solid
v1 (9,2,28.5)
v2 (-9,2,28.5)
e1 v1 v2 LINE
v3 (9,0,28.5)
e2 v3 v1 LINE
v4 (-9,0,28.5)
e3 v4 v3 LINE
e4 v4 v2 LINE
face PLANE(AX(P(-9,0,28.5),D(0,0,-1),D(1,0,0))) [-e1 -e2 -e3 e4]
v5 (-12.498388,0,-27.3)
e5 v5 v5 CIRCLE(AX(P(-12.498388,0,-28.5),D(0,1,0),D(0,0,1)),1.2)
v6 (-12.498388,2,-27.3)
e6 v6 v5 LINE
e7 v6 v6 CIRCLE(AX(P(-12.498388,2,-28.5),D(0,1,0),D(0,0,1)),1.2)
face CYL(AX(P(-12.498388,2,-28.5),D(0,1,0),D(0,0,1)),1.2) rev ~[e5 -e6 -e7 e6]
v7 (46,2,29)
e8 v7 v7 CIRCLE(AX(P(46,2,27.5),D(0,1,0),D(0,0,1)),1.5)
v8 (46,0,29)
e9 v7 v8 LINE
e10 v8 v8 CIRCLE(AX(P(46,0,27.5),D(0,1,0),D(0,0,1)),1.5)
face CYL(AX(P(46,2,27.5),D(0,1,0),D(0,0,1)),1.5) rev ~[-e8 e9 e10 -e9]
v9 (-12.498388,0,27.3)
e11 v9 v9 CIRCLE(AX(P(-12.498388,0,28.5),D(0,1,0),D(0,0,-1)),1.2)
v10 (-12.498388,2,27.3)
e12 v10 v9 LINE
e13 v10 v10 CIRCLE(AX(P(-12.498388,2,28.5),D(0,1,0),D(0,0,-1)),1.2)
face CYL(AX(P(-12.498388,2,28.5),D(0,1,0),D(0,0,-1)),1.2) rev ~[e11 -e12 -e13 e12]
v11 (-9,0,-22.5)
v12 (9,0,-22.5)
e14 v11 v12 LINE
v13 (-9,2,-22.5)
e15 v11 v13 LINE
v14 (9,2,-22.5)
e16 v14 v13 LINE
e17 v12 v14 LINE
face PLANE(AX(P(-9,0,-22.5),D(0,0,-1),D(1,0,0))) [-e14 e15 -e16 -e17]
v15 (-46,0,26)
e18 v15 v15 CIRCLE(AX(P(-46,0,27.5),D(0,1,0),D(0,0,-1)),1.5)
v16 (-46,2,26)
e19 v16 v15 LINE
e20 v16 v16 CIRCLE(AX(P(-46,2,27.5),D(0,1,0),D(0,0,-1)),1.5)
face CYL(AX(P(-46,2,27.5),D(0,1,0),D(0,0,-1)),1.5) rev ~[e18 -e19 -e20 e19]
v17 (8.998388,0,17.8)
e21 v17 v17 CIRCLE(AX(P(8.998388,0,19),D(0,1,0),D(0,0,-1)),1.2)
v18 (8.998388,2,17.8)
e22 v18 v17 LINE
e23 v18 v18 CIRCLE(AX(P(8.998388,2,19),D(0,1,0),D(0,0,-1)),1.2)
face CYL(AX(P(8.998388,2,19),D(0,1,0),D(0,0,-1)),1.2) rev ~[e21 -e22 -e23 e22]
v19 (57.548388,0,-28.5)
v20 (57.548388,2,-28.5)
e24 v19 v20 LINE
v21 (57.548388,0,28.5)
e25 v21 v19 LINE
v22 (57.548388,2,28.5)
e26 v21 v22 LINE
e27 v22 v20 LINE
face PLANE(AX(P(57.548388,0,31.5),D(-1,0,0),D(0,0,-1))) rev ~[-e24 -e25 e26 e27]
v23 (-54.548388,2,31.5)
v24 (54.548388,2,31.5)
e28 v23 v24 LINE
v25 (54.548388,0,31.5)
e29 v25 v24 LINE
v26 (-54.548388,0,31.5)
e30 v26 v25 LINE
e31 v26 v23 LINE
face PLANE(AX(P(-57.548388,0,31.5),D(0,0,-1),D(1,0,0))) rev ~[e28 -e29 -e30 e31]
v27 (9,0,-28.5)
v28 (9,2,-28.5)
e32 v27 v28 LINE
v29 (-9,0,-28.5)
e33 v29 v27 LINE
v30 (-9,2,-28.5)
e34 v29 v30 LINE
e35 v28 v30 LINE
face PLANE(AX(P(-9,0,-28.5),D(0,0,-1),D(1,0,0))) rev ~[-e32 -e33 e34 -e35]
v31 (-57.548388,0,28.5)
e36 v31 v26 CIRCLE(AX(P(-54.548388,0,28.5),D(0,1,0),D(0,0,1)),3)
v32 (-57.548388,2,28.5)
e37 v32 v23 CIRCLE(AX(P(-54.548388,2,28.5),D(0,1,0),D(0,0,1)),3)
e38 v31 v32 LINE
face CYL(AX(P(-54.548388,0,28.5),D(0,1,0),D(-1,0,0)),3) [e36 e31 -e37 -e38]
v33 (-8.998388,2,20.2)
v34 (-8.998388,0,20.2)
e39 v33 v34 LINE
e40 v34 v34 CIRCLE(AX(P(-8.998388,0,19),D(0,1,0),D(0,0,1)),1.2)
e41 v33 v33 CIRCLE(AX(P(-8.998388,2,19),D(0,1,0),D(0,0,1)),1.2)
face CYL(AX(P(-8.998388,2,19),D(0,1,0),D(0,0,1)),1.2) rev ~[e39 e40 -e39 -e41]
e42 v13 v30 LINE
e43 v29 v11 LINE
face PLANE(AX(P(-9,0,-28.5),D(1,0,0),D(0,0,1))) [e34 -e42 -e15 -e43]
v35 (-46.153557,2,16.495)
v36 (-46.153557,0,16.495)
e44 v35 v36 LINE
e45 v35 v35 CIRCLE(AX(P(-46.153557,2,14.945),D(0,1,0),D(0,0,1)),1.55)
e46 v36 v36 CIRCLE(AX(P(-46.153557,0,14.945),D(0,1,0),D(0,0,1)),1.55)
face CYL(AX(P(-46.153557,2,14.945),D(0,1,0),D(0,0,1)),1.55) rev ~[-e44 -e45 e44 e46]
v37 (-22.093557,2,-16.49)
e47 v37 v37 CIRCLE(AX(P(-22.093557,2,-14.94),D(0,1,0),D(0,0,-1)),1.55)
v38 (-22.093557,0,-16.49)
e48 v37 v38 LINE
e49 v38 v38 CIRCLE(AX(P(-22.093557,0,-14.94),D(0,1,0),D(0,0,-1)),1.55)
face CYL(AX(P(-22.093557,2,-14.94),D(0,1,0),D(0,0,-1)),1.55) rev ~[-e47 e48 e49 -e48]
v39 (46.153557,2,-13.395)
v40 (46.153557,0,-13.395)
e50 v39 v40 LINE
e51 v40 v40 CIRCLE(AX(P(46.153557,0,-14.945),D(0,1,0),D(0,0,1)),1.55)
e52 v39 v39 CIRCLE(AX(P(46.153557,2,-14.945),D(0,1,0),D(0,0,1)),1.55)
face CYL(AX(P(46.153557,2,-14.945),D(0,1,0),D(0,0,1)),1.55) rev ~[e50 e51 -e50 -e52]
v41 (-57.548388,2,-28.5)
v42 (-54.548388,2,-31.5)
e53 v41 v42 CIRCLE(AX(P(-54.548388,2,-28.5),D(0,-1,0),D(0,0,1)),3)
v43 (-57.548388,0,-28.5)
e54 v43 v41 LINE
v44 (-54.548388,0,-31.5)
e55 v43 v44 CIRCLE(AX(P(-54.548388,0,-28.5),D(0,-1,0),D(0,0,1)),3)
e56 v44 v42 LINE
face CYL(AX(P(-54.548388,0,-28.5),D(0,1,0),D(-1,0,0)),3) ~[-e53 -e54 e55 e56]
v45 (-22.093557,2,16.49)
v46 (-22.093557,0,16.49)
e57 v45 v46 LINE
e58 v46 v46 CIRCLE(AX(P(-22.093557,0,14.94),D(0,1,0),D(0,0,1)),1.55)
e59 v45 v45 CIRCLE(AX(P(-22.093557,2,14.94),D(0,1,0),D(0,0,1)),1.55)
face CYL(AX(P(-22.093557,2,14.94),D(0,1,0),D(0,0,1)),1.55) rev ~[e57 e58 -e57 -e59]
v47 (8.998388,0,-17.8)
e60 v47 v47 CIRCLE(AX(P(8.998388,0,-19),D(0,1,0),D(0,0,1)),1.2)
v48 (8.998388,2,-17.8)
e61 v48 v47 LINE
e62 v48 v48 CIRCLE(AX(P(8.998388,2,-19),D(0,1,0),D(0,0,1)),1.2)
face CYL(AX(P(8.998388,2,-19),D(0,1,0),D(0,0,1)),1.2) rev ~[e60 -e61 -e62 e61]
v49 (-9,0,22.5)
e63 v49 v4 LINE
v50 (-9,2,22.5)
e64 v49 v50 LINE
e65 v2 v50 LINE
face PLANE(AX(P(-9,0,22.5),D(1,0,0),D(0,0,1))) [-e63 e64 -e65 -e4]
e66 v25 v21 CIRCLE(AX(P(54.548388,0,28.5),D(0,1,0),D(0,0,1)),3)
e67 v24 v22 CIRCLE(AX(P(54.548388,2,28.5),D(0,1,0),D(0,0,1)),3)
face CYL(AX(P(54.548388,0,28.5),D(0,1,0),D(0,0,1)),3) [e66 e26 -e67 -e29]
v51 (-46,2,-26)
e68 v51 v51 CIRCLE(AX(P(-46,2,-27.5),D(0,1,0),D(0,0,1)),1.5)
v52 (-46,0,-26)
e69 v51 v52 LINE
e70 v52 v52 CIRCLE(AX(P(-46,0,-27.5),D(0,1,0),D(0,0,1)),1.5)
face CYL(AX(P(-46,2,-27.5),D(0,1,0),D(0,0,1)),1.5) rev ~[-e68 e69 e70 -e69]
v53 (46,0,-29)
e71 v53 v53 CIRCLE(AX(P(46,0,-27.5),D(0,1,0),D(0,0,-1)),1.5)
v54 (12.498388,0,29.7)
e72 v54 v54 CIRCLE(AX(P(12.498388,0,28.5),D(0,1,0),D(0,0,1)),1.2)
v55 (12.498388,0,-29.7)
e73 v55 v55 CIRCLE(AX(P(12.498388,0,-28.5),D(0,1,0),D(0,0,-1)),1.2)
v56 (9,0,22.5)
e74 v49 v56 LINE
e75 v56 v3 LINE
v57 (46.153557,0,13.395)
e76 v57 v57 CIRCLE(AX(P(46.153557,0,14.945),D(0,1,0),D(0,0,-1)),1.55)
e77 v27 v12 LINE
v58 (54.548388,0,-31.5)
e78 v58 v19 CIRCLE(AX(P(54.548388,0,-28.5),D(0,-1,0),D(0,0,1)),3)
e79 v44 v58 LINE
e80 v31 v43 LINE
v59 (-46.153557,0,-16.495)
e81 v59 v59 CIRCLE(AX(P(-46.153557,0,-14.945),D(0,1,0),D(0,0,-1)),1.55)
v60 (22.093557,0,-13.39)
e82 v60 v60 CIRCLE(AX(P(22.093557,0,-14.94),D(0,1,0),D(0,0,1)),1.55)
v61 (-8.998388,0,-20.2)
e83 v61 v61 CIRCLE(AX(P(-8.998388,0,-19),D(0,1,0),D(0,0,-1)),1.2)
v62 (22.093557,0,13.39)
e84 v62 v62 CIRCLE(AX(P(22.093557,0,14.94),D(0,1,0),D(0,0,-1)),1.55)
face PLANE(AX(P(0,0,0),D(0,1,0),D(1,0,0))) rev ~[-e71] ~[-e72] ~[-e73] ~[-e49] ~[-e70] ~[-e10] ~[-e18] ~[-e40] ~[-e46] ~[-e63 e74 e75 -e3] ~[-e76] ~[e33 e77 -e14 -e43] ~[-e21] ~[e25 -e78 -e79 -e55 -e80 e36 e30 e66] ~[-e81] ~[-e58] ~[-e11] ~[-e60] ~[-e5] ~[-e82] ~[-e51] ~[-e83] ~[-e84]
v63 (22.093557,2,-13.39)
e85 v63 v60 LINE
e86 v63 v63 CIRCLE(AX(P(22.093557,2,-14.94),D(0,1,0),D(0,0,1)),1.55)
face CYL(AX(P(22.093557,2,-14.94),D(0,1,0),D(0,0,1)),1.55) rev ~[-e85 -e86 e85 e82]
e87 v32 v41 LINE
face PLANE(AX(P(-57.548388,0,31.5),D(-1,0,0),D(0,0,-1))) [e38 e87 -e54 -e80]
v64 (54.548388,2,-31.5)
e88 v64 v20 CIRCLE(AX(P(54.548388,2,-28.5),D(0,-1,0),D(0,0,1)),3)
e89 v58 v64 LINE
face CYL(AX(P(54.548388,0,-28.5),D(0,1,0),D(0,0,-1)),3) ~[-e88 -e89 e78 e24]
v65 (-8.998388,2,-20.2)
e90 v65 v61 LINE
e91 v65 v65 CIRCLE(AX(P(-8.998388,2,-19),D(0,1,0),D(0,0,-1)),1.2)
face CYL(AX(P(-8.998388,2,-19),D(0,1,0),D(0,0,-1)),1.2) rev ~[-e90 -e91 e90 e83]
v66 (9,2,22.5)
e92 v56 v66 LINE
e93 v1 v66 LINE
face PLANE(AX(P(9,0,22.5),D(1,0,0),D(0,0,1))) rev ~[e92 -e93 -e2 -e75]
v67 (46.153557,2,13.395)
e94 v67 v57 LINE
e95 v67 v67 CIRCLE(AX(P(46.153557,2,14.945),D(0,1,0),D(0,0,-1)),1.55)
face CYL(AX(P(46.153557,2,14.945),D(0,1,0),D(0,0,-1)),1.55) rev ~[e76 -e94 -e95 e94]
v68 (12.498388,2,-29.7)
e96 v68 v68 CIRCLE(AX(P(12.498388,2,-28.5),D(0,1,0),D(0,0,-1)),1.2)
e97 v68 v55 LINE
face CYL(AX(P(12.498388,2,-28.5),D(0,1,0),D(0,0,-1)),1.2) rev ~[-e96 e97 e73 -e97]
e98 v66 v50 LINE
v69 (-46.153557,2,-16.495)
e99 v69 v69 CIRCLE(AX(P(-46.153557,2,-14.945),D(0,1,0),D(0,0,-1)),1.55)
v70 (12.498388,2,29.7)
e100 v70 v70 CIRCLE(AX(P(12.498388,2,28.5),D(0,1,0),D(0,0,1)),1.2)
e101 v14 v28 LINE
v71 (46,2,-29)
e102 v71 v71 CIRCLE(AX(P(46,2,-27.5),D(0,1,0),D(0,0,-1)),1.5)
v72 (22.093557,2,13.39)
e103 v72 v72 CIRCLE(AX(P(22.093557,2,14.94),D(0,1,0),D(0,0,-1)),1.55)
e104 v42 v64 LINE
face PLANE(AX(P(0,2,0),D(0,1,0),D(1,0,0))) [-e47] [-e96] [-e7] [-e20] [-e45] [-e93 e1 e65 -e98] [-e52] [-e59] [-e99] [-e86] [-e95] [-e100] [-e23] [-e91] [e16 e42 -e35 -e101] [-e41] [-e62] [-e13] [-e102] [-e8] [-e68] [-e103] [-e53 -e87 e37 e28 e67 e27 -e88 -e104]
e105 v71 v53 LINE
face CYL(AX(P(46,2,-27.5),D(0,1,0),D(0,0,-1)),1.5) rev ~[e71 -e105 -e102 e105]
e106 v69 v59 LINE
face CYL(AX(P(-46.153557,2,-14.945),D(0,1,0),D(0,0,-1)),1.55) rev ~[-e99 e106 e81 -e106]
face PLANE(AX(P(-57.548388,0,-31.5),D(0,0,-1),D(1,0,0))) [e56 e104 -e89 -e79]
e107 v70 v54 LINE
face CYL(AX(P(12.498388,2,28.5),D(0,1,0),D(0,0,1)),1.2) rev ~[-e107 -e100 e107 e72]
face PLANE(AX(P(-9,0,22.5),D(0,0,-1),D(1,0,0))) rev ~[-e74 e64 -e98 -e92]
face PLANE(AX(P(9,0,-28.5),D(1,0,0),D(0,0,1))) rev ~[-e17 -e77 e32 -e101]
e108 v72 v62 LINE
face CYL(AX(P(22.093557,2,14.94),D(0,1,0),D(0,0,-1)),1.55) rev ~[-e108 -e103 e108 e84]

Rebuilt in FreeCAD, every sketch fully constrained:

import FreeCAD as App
import Part
import Sketcher
from FreeCAD import Vector
Q = App.Units.Quantity


def edges_at(feature, points):
    """Names of the edges that pass closest to the given points."""
    edges = feature.Shape.Edges
    near = lambda p: min(range(len(edges)), key=lambda i: edges[i].distToShape(Part.Vertex(*p))[0])
    return sorted({f"Edge{near(p) + 1}" for p in points})


def add_polygon(sketch, points):
    """Adds a closed chain of lines whose ends are joined by coincident constraints."""
    first, n = sketch.GeometryCount, len(points)
    for a, b in zip(points, points[1:] + points[:1]):
        sketch.addGeometry(Part.LineSegment(App.Vector(*a, 0), App.Vector(*b, 0)), False)
    for i in range(n):
        sketch.addConstraint(Sketcher.Constraint("Coincident", first + i, 2, first + (i + 1) % n, 1))

doc = App.newDocument("Part")
body = doc.addObject("PartDesign::Body", "Body")

sketch1 = body.newObject("Sketcher::SketchObject", "Sketch")
sketch1.AttachmentSupport = (doc.getObject("XZ_Plane"), [""])
sketch1.MapMode = "FlatFace"
add_polygon(sketch1, [(-58, -32), (-58, 32), (58, 32), (58, -32)])
sketch1.addConstraint([
    Sketcher.Constraint("Vertical", 0),
    Sketcher.Constraint("Horizontal", 1),
    Sketcher.Constraint("Vertical", 2),
    Sketcher.Constraint("Horizontal", 3),
    Sketcher.Constraint("Symmetric", 0, 2, 2, 2, -1, 1),
    Sketcher.Constraint("DistanceY", 0, 1, 0, 2, Q("63 mm")),
    Sketcher.Constraint("DistanceX", 1, 1, 1, 2, Q("115.096777 mm")),
])
pad1 = body.newObject("PartDesign::Pad", "Pad")
pad1.Profile = sketch1
pad1.Length = 2
pad1.Reversed = True

sketch2 = body.newObject("Sketcher::SketchObject", "Sketch001")
sketch2.AttachmentSupport = (doc.getObject("XZ_Plane"), [""])
sketch2.MapMode = "FlatFace"
sketch2.AttachmentOffset = App.Placement(Vector(0, 0, -2), App.Rotation())
sketch2.addGeometry([
    Part.Circle(Vector(-46.2, 14.9, 0), Vector(0, 0, 1), 1.6),
    Part.Circle(Vector(-22.1, 14.9, 0), Vector(0, 0, 1), 1.6),
    Part.Circle(Vector(22.1, 14.9, 0), Vector(0, 0, 1), 1.6),
    Part.Circle(Vector(46.2, 14.9, 0), Vector(0, 0, 1), 1.6),
    Part.Circle(Vector(46.2, -14.9, 0), Vector(0, 0, 1), 1.6),
    Part.Circle(Vector(22.1, -14.9, 0), Vector(0, 0, 1), 1.6),
    Part.Circle(Vector(-22.1, -14.9, 0), Vector(0, 0, 1), 1.6),
    Part.Circle(Vector(-46.2, -14.9, 0), Vector(0, 0, 1), 1.6),
], False)
sketch2.addConstraint([
    Sketcher.Constraint("Equal", 0, 1),
    Sketcher.Constraint("Equal", 1, 2),
    Sketcher.Constraint("Equal", 2, 3),
    Sketcher.Constraint("Equal", 3, 4),
    Sketcher.Constraint("Equal", 4, 5),
    Sketcher.Constraint("Equal", 5, 6),
    Sketcher.Constraint("Equal", 6, 7),
    Sketcher.Constraint("Symmetric", 0, 3, 4, 3, -1, 1),
    Sketcher.Constraint("Symmetric", 1, 3, 5, 3, -1, 1),
    Sketcher.Constraint("Symmetric", 2, 3, 6, 3, -1, 1),
    Sketcher.Constraint("Symmetric", 3, 3, 7, 3, -1, 1),
    Sketcher.Constraint("Symmetric", 1, 3, 2, 3, -2),
    Sketcher.Constraint("Symmetric", 0, 3, 3, 3, -2),
    Sketcher.Constraint("Diameter", 0, Q("3.1 mm")),
    Sketcher.Constraint("DistanceY", -1, 1, 1, 3, Q("14.94 mm")),
    Sketcher.Constraint("DistanceX", 0, 3, 1, 3, Q("24.06 mm")),
    Sketcher.Constraint("DistanceY", 4, 3, 3, 3, Q("29.89 mm")),
    Sketcher.Constraint("DistanceX", 0, 3, -1, 1, Q("46.153557 mm")),
])
pocket1 = body.newObject("PartDesign::Pocket", "Pocket")
pocket1.Profile = sketch2
pocket1.Type = "ThroughAll"
pocket1.Reversed = True

sketch3 = body.newObject("Sketcher::SketchObject", "Sketch002")
sketch3.AttachmentSupport = (doc.getObject("XZ_Plane"), [""])
sketch3.MapMode = "FlatFace"
add_polygon(sketch3, [(-9, 28), (-9, 22), (9, 22), (9, 28)])
add_polygon(sketch3, [(-9, -22), (-9, -28), (9, -28), (9, -22)])
sketch3.addConstraint([
    Sketcher.Constraint("Vertical", 0),
    Sketcher.Constraint("Horizontal", 1),
    Sketcher.Constraint("Vertical", 2),
    Sketcher.Constraint("Horizontal", 3),
    Sketcher.Constraint("Vertical", 4),
    Sketcher.Constraint("Horizontal", 5),
    Sketcher.Constraint("Vertical", 6),
    Sketcher.Constraint("Horizontal", 7),
    Sketcher.Constraint("Symmetric", 2, 2, 4, 2, -1, 1),
    Sketcher.Constraint("Symmetric", 0, 2, 6, 2, -1, 1),
    Sketcher.Constraint("Vertical", 3, 2, 4, 2),
    Sketcher.Constraint("DistanceX", 1, 1, 1, 2, Q("18 mm")),
    Sketcher.Constraint("DistanceY", 0, 2, 0, 1, Q("6 mm")),
    Sketcher.Constraint("DistanceY", 4, 2, 0, 2, Q("51 mm")),
])
pocket2 = body.newObject("PartDesign::Pocket", "Pocket001")
pocket2.Profile = sketch3
pocket2.Type = "ThroughAll"
doc.recompute()

fillet = body.newObject("PartDesign::Fillet", "Fillet")
fillet.Base = (pocket2, edges_at(pocket2, [
    (-57.548, 1, -31.5),
    (57.548, 1, -31.5),
    (57.548, 1, 31.5),
    (-57.548, 1, 31.5),
]))
fillet.Radius = 3

sketch4 = body.newObject("Sketcher::SketchObject", "Sketch003")
sketch4.AttachmentSupport = (doc.getObject("XZ_Plane"), [""])
sketch4.MapMode = "FlatFace"
sketch4.AttachmentOffset = App.Placement(Vector(0, 0, -2), App.Rotation())
sketch4.addGeometry([
    Part.Circle(Vector(-12.5, -28.5, 0), Vector(0, 0, 1), 1.2),
    Part.Circle(Vector(12.5, -28.5, 0), Vector(0, 0, 1), 1.2),
    Part.Circle(Vector(12.5, 28.5, 0), Vector(0, 0, 1), 1.2),
    Part.Circle(Vector(-12.5, 28.5, 0), Vector(0, 0, 1), 1.2),
    Part.Circle(Vector(-9, 19, 0), Vector(0, 0, 1), 1.2),
    Part.Circle(Vector(9, 19, 0), Vector(0, 0, 1), 1.2),
    Part.Circle(Vector(9, -19, 0), Vector(0, 0, 1), 1.2),
    Part.Circle(Vector(-9, -19, 0), Vector(0, 0, 1), 1.2),
], False)
sketch4.addConstraint([
    Sketcher.Constraint("Equal", 0, 1),
    Sketcher.Constraint("Equal", 1, 2),
    Sketcher.Constraint("Equal", 2, 3),
    Sketcher.Constraint("Equal", 3, 4),
    Sketcher.Constraint("Equal", 4, 5),
    Sketcher.Constraint("Equal", 5, 6),
    Sketcher.Constraint("Equal", 6, 7),
    Sketcher.Constraint("Symmetric", 0, 3, 2, 3, -1, 1),
    Sketcher.Constraint("Symmetric", 1, 3, 3, 3, -1, 1),
    Sketcher.Constraint("Symmetric", 4, 3, 6, 3, -1, 1),
    Sketcher.Constraint("Symmetric", 5, 3, 7, 3, -1, 1),
    Sketcher.Constraint("Symmetric", 0, 3, 1, 3, -2),
    Sketcher.Constraint("Symmetric", 4, 3, 5, 3, -2),
    Sketcher.Constraint("Diameter", 0, Q("2.4 mm")),
    Sketcher.Constraint("DistanceY", -1, 1, 4, 3, Q("19 mm")),
    Sketcher.Constraint("DistanceY", 1, 3, 2, 3, Q("57 mm")),
    Sketcher.Constraint("DistanceX", 3, 3, 4, 3, Q("3.5 mm")),
    Sketcher.Constraint("DistanceX", 0, 3, -1, 1, Q("12.498388 mm")),
])
pocket3 = body.newObject("PartDesign::Pocket", "Pocket002")
pocket3.Profile = sketch4
pocket3.Type = "ThroughAll"
pocket3.Reversed = True

sketch5 = body.newObject("Sketcher::SketchObject", "Sketch004")
sketch5.AttachmentSupport = (doc.getObject("XZ_Plane"), [""])
sketch5.MapMode = "FlatFace"
sketch5.AttachmentOffset = App.Placement(Vector(0, 0, -2), App.Rotation())
sketch5.addGeometry([
    Part.Circle(Vector(-46, -27.5, 0), Vector(0, 0, 1), 1.5),
    Part.Circle(Vector(46, -27.5, 0), Vector(0, 0, 1), 1.5),
    Part.Circle(Vector(46, 27.5, 0), Vector(0, 0, 1), 1.5),
    Part.Circle(Vector(-46, 27.5, 0), Vector(0, 0, 1), 1.5),
], False)
sketch5.addConstraint([
    Sketcher.Constraint("Equal", 0, 1),
    Sketcher.Constraint("Equal", 1, 2),
    Sketcher.Constraint("Equal", 2, 3),
    Sketcher.Constraint("Symmetric", 0, 3, 2, 3, -1, 1),
    Sketcher.Constraint("Symmetric", 1, 3, 3, 3, -1, 1),
    Sketcher.Constraint("Symmetric", 0, 3, 1, 3, -2),
    Sketcher.Constraint("Diameter", 0, Q("3 mm")),
    Sketcher.Constraint("DistanceX", 0, 3, -1, 1, Q("46 mm")),
    Sketcher.Constraint("DistanceY", 1, 3, 2, 3, Q("55 mm")),
])
pocket4 = body.newObject("PartDesign::Pocket", "Pocket003")
pocket4.Profile = sketch5
pocket4.Type = "ThroughAll"
pocket4.Reversed = True

doc.recompute()
